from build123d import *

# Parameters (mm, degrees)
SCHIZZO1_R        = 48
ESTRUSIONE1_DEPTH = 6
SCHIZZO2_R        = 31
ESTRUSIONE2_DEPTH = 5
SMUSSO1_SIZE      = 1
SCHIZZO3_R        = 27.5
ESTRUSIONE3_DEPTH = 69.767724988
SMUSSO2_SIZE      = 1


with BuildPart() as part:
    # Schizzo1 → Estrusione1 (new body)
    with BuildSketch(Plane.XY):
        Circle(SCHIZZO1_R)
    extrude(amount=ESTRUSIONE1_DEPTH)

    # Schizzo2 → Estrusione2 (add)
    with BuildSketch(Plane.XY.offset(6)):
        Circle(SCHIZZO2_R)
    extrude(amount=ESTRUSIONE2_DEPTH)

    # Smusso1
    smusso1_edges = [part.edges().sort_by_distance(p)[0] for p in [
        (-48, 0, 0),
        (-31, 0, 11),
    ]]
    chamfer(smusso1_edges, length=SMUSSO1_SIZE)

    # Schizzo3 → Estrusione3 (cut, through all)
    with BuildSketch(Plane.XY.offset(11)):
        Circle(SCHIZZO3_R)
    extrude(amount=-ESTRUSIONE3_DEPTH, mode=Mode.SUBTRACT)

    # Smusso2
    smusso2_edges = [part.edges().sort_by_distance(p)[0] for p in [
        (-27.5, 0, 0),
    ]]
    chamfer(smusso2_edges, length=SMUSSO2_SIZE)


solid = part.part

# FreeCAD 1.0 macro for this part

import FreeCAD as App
import Part
import Sketcher
from FreeCAD import Vector
Q = App.Units.Quantity


def edges_at(feature, points):
    """Names of the edges that pass closest to the given points."""
    edges = feature.Shape.Edges
    near = lambda p: min(range(len(edges)), key=lambda i: edges[i].distToShape(Part.Vertex(*p))[0])
    return sorted({f"Edge{near(p) + 1}" for p in points})

doc = App.newDocument("Part")
body = doc.addObject("PartDesign::Body", "Body")

# Sketch on XY plane
sketch1 = body.newObject("Sketcher::SketchObject", "Sketch")
sketch1.AttachmentSupport = (doc.getObject("XY_Plane"), [""])
sketch1.MapMode = "FlatFace"
sketch1.addGeometry(Part.Circle(Vector(0, 0, 0), Vector(0, 0, 1), 48), False)
sketch1.addConstraint([
    Sketcher.Constraint("Coincident", 0, 3, -1, 1),
    Sketcher.Constraint("Diameter", 0, Q("96 mm")),
])
pad1 = body.newObject("PartDesign::Pad", "Pad")
pad1.Profile = sketch1
pad1.Length = 6

# Sketch on XY plane
sketch2 = body.newObject("Sketcher::SketchObject", "Sketch001")
sketch2.AttachmentSupport = (doc.getObject("XY_Plane"), [""])
sketch2.MapMode = "FlatFace"
sketch2.AttachmentOffset = App.Placement(Vector(0, 0, 6), App.Rotation())
sketch2.addGeometry(Part.Circle(Vector(0, 0, 0), Vector(0, 0, 1), 31), False)
sketch2.addConstraint([
    Sketcher.Constraint("Coincident", 0, 3, -1, 1),
    Sketcher.Constraint("Diameter", 0, Q("62 mm")),
])
pad2 = body.newObject("PartDesign::Pad", "Pad001")
pad2.Profile = sketch2
pad2.Length = 5
doc.recompute()

chamfer = body.newObject("PartDesign::Chamfer", "Chamfer")
chamfer.Base = (pad2, edges_at(pad2, [(-48, 0, 0), (-31, 0, 11)]))
chamfer.Size = 1

# Sketch on XY plane
sketch3 = body.newObject("Sketcher::SketchObject", "Sketch002")
sketch3.AttachmentSupport = (doc.getObject("XY_Plane"), [""])
sketch3.MapMode = "FlatFace"
sketch3.AttachmentOffset = App.Placement(Vector(0, 0, 11), App.Rotation())
sketch3.addGeometry(Part.Circle(Vector(0, 0, 0), Vector(0, 0, 1), 28), False)
sketch3.addConstraint([
    Sketcher.Constraint("Coincident", 0, 3, -1, 1),
    Sketcher.Constraint("Diameter", 0, Q("55 mm")),
])
pocket1 = body.newObject("PartDesign::Pocket", "Pocket")
pocket1.Profile = sketch3
pocket1.Type = "ThroughAll"
doc.recompute()

chamfer2 = body.newObject("PartDesign::Chamfer", "Chamfer001")
chamfer2.Base = (pocket1, edges_at(pocket1, [(-27.5, 0, 0)]))
chamfer2.Size = 1

doc.recompute()
